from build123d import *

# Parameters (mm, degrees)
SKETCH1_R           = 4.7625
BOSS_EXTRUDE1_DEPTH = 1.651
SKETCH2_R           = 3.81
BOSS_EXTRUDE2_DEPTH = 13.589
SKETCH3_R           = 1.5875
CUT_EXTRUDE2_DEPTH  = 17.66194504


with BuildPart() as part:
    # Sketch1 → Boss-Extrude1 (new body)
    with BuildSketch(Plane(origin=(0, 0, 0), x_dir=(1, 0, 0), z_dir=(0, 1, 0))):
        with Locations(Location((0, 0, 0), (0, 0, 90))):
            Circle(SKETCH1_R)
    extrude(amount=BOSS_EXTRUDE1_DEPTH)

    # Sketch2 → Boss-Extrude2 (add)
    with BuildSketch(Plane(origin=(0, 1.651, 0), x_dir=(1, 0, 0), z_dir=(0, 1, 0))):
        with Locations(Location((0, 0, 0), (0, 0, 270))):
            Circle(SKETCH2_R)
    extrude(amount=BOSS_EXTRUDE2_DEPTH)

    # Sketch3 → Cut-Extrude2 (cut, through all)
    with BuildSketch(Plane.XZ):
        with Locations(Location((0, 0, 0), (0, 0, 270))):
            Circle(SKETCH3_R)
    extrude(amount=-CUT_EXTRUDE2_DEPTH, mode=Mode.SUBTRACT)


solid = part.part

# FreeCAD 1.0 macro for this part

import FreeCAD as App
import Part
import Sketcher

V = App.Vector
Q = App.Units.Quantity

doc = App.newDocument("Part")
body = doc.addObject("PartDesign::Body", "Body")

# Sketch on XZ plane
sketch1 = body.newObject("Sketcher::SketchObject", "Sketch")
sketch1.AttachmentSupport = (doc.getObject("XZ_Plane"), [""])
sketch1.MapMode = "FlatFace"
sketch1.addGeometry(Part.Circle(V(0, 0, 0), V(0, 0, 1), 4.8), False)
sketch1.addConstraint(Sketcher.Constraint("Coincident", 0, 3, -1, 1))
sketch1.addConstraint(Sketcher.Constraint("Diameter", 0, Q("0.375 in")))
pad1 = body.newObject("PartDesign::Pad", "Pad")
pad1.Profile = sketch1
pad1.Length = Q("0.065 in")
pad1.Reversed = True

# Sketch on XZ plane
sketch2 = body.newObject("Sketcher::SketchObject", "Sketch001")
sketch2.AttachmentSupport = (doc.getObject("XZ_Plane"), [""])
sketch2.MapMode = "FlatFace"
sketch2.AttachmentOffset = App.Placement(V(0, 0, -0.065 * 25.4), App.Rotation())
sketch2.addGeometry(Part.Circle(V(0, 0, 0), V(0, 0, 1), 3.8), False)
sketch2.addConstraint(Sketcher.Constraint("Coincident", 0, 3, -1, 1))
sketch2.addConstraint(Sketcher.Constraint("Diameter", 0, Q("0.3 in")))
pad2 = body.newObject("PartDesign::Pad", "Pad001")
pad2.Profile = sketch2
pad2.Length = Q("0.535 in")
pad2.Reversed = True

# Sketch on XZ plane
sketch3 = body.newObject("Sketcher::SketchObject", "Sketch002")
sketch3.AttachmentSupport = (doc.getObject("XZ_Plane"), [""])
sketch3.MapMode = "FlatFace"
sketch3.addGeometry(Part.Circle(V(0, 0, 0), V(0, 0, 1), 1.6), False)
sketch3.addConstraint(Sketcher.Constraint("Coincident", 0, 3, -1, 1))
sketch3.addConstraint(Sketcher.Constraint("Diameter", 0, Q("0.125 in")))
pocket1 = body.newObject("PartDesign::Pocket", "Pocket")
pocket1.Profile = sketch3
pocket1.Type = "ThroughAll"

doc.recompute()
